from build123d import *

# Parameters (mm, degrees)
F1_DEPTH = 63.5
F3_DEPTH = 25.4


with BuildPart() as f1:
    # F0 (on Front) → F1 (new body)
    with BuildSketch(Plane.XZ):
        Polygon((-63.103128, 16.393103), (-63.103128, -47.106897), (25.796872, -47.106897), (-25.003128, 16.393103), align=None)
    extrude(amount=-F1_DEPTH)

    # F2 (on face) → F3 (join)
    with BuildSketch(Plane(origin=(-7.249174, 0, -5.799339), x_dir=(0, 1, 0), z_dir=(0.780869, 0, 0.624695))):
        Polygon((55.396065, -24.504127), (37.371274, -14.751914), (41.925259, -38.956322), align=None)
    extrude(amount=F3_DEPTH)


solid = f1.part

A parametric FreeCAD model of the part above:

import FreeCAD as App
import Part
import Sketcher
Q = App.Units.Quantity


def add_polygon(sketch, points):
    """Adds a closed chain of lines whose ends are joined by coincident constraints."""
    first, n = sketch.GeometryCount, len(points)
    for a, b in zip(points, points[1:] + points[:1]):
        sketch.addGeometry(Part.LineSegment(App.Vector(*a, 0), App.Vector(*b, 0)), False)
    for i in range(n):
        sketch.addConstraint(Sketcher.Constraint("Coincident", first + i, 2, first + (i + 1) % n, 1))

doc = App.newDocument("Part")
body = doc.addObject("PartDesign::Body", "Body")

sketch1 = doc.addObject("Sketcher::SketchObject", "Sketch")
body.addObject(sketch1)
sketch1.AttachmentSupport = (doc.XZ_Plane, [""])
sketch1.MapMode = "FlatFace"
add_polygon(sketch1, [(-63, 16), (-63, -47), (26, -47), (-25, 16)])
sketch1.addConstraint(Sketcher.Constraint("Vertical", 0))
sketch1.addConstraint(Sketcher.Constraint("Horizontal", 1))
sketch1.addConstraint(Sketcher.Constraint("Horizontal", 3))
sketch1.addConstraint(Sketcher.Constraint("DistanceX", 1, 1, 1, 2, Q("3.5 in")))
sketch1.addConstraint(Sketcher.Constraint("DistanceX", 3, 2, 3, 1, Q("1.5 in")))
sketch1.addConstraint(Sketcher.Constraint("DistanceY", 0, 2, 0, 1, Q("2.5 in")))
sketch1.addConstraint(Sketcher.Constraint("DistanceX", 0, 2, -1, 1, Q("2.4843751 in")))
sketch1.addConstraint(Sketcher.Constraint("DistanceY", 0, 2, -1, 1, Q("47.106897 mm")))
pad1 = doc.addObject("PartDesign::Pad", "Pad")
body.addObject(pad1)
pad1.Profile = sketch1
pad1.Length = Q("2.5 in")
pad1.Reversed = True

sketch2 = doc.addObject("Sketcher::SketchObject", "Sketch001")
body.addObject(sketch2)
sketch2.Placement = App.Placement(App.Vector(-7.249174, 0, -5.799339), App.Rotation(App.Vector(0, 1, 0), App.Vector(-0.624694926, 0, 0.780868907), App.Vector(0.780868907, 0, 0.624694926), "ZXY"))
add_polygon(sketch2, [(55, -25), (37, -15), (42, -39)])
sketch2.addConstraint(Sketcher.Constraint("Distance", 0, Q("20.493871 mm")))
sketch2.addConstraint(Sketcher.Constraint("Distance", 1, Q("24.629091 mm")))
sketch2.addConstraint(Sketcher.Constraint("DistanceX", -1, 1, 1, 2, Q("41.925259 mm")))
sketch2.addConstraint(Sketcher.Constraint("DistanceY", 1, 2, 0, 2, Q("24.204408 mm")))
sketch2.addConstraint(Sketcher.Constraint("DistanceX", 0, 2, 2, 2, Q("18.024791 mm")))
sketch2.addConstraint(Sketcher.Constraint("DistanceY", 0, 2, -1, 1, Q("14.751914 mm")))
pad2 = doc.addObject("PartDesign::Pad", "Pad001")
body.addObject(pad2)
pad2.Profile = sketch2
pad2.Length = Q("1 in")

doc.recompute()
